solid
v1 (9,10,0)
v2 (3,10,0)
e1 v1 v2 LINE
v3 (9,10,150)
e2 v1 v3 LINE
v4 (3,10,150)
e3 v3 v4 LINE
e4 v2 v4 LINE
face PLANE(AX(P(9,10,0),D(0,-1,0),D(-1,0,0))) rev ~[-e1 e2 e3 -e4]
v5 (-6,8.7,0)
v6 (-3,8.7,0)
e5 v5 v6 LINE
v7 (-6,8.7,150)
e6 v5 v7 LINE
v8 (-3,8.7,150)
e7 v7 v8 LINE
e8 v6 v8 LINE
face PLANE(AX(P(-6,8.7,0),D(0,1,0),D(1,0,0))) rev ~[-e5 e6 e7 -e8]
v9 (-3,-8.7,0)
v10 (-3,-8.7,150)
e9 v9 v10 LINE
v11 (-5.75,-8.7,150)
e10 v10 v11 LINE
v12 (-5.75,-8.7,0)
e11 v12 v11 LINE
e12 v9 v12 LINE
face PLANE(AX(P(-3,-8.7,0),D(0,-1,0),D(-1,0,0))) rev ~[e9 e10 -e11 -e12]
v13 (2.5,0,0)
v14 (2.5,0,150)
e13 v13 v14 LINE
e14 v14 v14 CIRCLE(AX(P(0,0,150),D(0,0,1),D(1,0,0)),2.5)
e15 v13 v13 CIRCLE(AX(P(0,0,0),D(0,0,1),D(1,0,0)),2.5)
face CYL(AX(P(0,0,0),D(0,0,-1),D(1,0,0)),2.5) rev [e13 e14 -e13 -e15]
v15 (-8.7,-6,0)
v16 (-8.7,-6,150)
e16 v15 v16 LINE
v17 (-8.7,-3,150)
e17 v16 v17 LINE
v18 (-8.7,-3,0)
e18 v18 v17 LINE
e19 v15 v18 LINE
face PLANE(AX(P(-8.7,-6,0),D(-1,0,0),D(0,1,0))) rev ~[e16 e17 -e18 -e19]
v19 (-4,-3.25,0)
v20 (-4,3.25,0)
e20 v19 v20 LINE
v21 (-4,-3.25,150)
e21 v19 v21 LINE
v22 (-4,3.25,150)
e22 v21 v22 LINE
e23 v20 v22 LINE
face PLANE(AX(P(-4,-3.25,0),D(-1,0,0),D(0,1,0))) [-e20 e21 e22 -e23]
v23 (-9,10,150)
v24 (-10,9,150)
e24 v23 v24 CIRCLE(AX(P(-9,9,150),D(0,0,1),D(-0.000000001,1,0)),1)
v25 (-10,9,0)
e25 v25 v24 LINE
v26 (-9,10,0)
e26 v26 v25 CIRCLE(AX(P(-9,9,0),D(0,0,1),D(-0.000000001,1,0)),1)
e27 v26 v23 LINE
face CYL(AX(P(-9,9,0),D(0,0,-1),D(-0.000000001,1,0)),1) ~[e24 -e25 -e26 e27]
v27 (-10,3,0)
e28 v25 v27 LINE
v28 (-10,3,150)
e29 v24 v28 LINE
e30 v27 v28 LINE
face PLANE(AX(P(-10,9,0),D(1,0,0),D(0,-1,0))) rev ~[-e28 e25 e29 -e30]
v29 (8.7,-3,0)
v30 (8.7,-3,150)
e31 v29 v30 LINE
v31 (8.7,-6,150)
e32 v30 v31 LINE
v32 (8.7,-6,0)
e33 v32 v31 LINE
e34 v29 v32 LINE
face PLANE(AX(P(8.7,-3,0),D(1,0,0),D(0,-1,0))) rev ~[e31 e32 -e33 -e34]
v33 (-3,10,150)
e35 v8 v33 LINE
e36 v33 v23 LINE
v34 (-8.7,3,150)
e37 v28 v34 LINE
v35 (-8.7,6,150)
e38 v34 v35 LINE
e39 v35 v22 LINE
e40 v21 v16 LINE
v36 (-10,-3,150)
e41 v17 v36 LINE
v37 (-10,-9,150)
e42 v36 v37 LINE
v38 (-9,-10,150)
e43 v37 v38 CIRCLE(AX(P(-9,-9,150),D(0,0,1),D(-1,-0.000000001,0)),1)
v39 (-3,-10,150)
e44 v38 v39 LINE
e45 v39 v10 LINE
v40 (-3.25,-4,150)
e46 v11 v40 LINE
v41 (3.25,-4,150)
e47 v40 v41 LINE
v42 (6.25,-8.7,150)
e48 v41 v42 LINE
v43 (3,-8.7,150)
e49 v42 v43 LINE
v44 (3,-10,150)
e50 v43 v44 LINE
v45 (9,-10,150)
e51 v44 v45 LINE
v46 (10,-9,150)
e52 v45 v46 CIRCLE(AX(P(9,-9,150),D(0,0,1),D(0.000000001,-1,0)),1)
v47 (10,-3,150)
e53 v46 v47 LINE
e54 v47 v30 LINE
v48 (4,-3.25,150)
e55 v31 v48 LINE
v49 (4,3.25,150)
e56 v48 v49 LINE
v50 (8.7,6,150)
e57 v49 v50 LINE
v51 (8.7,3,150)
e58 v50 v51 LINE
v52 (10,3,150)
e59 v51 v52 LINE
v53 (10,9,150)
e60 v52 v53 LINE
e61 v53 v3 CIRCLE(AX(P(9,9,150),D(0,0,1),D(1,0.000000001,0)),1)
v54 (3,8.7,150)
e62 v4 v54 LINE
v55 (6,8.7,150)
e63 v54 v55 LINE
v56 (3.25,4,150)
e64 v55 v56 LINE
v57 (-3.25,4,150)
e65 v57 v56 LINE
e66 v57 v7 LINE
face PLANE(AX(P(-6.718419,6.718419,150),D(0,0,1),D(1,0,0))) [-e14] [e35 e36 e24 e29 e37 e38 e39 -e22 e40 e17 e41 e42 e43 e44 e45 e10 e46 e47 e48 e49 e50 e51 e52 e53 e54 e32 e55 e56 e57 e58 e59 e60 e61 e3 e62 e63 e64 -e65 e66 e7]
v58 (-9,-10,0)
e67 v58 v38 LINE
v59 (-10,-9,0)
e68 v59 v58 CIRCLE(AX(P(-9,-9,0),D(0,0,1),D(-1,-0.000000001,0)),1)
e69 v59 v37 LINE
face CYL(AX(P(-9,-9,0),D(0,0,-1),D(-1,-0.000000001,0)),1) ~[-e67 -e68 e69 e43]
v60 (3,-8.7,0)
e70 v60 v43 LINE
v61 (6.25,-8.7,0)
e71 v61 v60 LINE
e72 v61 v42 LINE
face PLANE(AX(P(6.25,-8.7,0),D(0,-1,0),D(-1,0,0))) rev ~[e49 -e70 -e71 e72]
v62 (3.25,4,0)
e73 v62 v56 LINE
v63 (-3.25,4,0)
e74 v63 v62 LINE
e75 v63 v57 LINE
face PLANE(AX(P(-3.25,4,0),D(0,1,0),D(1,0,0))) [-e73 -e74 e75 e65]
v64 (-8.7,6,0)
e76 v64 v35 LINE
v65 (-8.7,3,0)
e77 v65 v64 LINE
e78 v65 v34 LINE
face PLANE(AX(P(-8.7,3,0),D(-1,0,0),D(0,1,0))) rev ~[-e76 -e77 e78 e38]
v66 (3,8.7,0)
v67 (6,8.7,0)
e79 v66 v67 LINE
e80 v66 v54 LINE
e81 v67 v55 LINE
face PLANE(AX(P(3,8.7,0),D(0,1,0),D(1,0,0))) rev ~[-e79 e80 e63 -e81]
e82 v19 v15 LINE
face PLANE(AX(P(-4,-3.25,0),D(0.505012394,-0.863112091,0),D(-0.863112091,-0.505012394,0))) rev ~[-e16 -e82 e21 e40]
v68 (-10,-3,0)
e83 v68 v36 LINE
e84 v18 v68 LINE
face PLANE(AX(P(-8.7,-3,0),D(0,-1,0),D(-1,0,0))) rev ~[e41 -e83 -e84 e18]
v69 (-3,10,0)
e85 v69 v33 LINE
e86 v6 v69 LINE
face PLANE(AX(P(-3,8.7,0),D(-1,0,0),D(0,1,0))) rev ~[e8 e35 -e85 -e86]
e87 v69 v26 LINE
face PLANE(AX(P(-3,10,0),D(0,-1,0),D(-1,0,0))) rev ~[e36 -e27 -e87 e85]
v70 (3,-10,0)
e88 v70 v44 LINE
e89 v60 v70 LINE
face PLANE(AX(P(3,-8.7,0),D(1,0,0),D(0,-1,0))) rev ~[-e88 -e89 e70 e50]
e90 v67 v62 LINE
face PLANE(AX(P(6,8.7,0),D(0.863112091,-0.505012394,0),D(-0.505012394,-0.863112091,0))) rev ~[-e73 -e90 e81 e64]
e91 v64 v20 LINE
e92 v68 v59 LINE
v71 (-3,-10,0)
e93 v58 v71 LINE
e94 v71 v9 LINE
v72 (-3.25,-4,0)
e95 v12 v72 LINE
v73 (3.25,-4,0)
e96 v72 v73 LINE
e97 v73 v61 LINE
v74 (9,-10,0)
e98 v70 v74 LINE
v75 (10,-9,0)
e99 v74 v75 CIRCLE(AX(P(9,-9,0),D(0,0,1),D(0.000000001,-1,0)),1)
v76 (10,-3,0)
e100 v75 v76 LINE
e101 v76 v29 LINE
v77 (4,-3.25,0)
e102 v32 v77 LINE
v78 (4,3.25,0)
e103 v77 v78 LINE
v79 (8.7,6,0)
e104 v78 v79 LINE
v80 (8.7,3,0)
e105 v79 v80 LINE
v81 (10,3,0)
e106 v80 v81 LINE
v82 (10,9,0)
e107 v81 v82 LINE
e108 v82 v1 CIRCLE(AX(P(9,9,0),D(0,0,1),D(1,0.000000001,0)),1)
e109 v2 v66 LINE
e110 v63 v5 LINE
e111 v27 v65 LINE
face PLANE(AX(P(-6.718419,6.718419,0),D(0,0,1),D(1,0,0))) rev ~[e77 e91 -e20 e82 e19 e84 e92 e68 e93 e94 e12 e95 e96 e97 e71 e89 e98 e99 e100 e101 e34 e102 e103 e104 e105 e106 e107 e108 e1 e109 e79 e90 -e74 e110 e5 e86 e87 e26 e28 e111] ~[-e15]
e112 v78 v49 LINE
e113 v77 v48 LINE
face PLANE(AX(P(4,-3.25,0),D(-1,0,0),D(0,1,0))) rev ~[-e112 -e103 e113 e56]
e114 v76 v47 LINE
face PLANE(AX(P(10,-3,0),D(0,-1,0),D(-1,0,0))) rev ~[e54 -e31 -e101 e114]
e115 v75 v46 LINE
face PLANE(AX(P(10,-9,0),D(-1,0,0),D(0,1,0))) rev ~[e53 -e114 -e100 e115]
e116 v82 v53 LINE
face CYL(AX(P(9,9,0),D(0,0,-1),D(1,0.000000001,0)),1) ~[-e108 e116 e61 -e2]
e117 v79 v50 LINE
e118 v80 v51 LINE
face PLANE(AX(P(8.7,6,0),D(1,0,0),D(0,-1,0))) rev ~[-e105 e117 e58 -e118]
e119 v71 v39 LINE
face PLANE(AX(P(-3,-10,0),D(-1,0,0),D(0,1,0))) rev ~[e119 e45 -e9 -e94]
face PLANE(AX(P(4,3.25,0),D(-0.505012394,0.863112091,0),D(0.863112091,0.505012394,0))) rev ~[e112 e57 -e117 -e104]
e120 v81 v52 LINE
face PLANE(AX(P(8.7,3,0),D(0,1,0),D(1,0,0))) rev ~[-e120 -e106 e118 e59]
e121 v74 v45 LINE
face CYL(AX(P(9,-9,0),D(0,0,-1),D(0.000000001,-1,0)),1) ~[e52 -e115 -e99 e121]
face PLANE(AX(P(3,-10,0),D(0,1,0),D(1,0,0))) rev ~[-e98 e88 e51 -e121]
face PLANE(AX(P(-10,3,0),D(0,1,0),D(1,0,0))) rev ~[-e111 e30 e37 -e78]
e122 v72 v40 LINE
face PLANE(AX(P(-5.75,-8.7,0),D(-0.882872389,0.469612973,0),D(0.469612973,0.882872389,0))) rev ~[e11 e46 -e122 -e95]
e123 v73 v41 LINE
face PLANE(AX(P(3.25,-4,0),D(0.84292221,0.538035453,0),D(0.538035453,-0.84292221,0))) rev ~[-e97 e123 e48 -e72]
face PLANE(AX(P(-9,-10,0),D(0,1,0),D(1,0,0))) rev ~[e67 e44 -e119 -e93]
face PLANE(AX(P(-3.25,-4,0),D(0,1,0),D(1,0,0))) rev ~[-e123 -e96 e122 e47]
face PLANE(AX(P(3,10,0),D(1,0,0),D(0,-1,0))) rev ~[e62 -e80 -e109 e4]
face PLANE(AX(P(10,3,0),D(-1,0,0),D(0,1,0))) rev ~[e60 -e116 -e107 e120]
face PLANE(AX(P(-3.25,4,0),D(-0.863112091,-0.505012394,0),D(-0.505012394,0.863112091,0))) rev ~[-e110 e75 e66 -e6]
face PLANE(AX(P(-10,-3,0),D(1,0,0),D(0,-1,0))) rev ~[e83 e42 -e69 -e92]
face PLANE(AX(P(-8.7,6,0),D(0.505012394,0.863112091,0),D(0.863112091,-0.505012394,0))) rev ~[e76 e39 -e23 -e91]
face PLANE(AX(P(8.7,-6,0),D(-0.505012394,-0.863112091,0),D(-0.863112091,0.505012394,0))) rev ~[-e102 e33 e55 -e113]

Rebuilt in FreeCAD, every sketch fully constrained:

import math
import FreeCAD as App
import Part
import Sketcher
from FreeCAD import Vector

doc = App.newDocument("Part")
body = doc.addObject("PartDesign::Body", "Body")

sketch1 = doc.addObject("Sketcher::SketchObject", "Sketch")
body.addObject(sketch1)
sketch1.AttachmentSupport = (doc.XY_Plane, [""])
sketch1.MapMode = "FlatFace"
sketch1.addGeometry([
    Part.LineSegment(Vector(-3, 8.7, 0), Vector(-3, 10, 0)),
    Part.LineSegment(Vector(-3, 10, 0), Vector(-9, 10, 0)),
    Part.ArcOfCircle(Part.Circle(Vector(-9, 9, 0), Vector(0, 0, 1), 1), math.radians(90), math.radians(180)),
    Part.LineSegment(Vector(-10, 9, 0), Vector(-10, 3, 0)),
    Part.LineSegment(Vector(-10, 3, 0), Vector(-8.7, 3, 0)),
    Part.LineSegment(Vector(-8.7, 3, 0), Vector(-8.7, 6, 0)),
    Part.LineSegment(Vector(-8.7, 6, 0), Vector(-4, 3.2, 0)),
    Part.LineSegment(Vector(-4, 3.2, 0), Vector(-4, -3.2, 0)),
    Part.LineSegment(Vector(-4, -3.2, 0), Vector(-8.7, -6, 0)),
    Part.LineSegment(Vector(-8.7, -6, 0), Vector(-8.7, -3, 0)),
    Part.LineSegment(Vector(-8.7, -3, 0), Vector(-10, -3, 0)),
    Part.LineSegment(Vector(-10, -3, 0), Vector(-10, -9, 0)),
    Part.ArcOfCircle(Part.Circle(Vector(-9, -9, 0), Vector(0, 0, 1), 1), math.radians(-180), math.radians(-90)),
    Part.LineSegment(Vector(-9, -10, 0), Vector(-3, -10, 0)),
    Part.LineSegment(Vector(-3, -10, 0), Vector(-3, -8.7, 0)),
    Part.LineSegment(Vector(-3, -8.7, 0), Vector(-5.8, -8.7, 0)),
    Part.LineSegment(Vector(-5.8, -8.7, 0), Vector(-3.2, -4, 0)),
    Part.LineSegment(Vector(-3.2, -4, 0), Vector(3.2, -4, 0)),
    Part.LineSegment(Vector(3.2, -4, 0), Vector(6.2, -8.7, 0)),
    Part.LineSegment(Vector(6.2, -8.7, 0), Vector(3, -8.7, 0)),
    Part.LineSegment(Vector(3, -8.7, 0), Vector(3, -10, 0)),
    Part.LineSegment(Vector(3, -10, 0), Vector(9, -10, 0)),
    Part.ArcOfCircle(Part.Circle(Vector(9, -9, 0), Vector(0, 0, 1), 1), math.radians(-90), math.radians(0)),
    Part.LineSegment(Vector(10, -9, 0), Vector(10, -3, 0)),
    Part.LineSegment(Vector(10, -3, 0), Vector(8.7, -3, 0)),
    Part.LineSegment(Vector(8.7, -3, 0), Vector(8.7, -6, 0)),
    Part.LineSegment(Vector(8.7, -6, 0), Vector(4, -3.2, 0)),
    Part.LineSegment(Vector(4, -3.2, 0), Vector(4, 3.2, 0)),
    Part.LineSegment(Vector(4, 3.2, 0), Vector(8.7, 6, 0)),
    Part.LineSegment(Vector(8.7, 6, 0), Vector(8.7, 3, 0)),
    Part.LineSegment(Vector(8.7, 3, 0), Vector(10, 3, 0)),
    Part.LineSegment(Vector(10, 3, 0), Vector(10, 9, 0)),
    Part.ArcOfCircle(Part.Circle(Vector(9, 9, 0), Vector(0, 0, 1), 1), math.radians(0), math.radians(90)),
    Part.LineSegment(Vector(9, 10, 0), Vector(3, 10, 0)),
    Part.LineSegment(Vector(3, 10, 0), Vector(3, 8.7, 0)),
    Part.LineSegment(Vector(3, 8.7, 0), Vector(6, 8.7, 0)),
    Part.LineSegment(Vector(6, 8.7, 0), Vector(3.2, 4, 0)),
    Part.LineSegment(Vector(3.2, 4, 0), Vector(-3.2, 4, 0)),
    Part.LineSegment(Vector(-3.2, 4, 0), Vector(-6, 8.7, 0)),
    Part.LineSegment(Vector(-6, 8.7, 0), Vector(-3, 8.7, 0)),
    Part.Circle(Vector(0, 0, 0), Vector(0, 0, 1), 2.5),
], False)
sketch1.addConstraint([
    Sketcher.Constraint("Coincident", 0, 2, 1, 1),
    Sketcher.Constraint("Tangent", 1, 2, 2, 1),
    Sketcher.Constraint("Tangent", 2, 2, 3, 1),
    Sketcher.Constraint("Coincident", 3, 2, 4, 1),
    Sketcher.Constraint("Coincident", 4, 2, 5, 1),
    Sketcher.Constraint("Coincident", 5, 2, 6, 1),
    Sketcher.Constraint("Coincident", 6, 2, 7, 1),
    Sketcher.Constraint("Coincident", 7, 2, 8, 1),
    Sketcher.Constraint("Coincident", 8, 2, 9, 1),
    Sketcher.Constraint("Coincident", 9, 2, 10, 1),
    Sketcher.Constraint("Coincident", 10, 2, 11, 1),
    Sketcher.Constraint("Tangent", 11, 2, 12, 1),
    Sketcher.Constraint("Tangent", 12, 2, 13, 1),
    Sketcher.Constraint("Coincident", 13, 2, 14, 1),
    Sketcher.Constraint("Coincident", 14, 2, 15, 1),
    Sketcher.Constraint("Coincident", 15, 2, 16, 1),
    Sketcher.Constraint("Coincident", 16, 2, 17, 1),
    Sketcher.Constraint("Coincident", 17, 2, 18, 1),
    Sketcher.Constraint("Coincident", 18, 2, 19, 1),
    Sketcher.Constraint("Coincident", 19, 2, 20, 1),
    Sketcher.Constraint("Coincident", 20, 2, 21, 1),
    Sketcher.Constraint("Tangent", 21, 2, 22, 1),
    Sketcher.Constraint("Tangent", 22, 2, 23, 1),
    Sketcher.Constraint("Coincident", 23, 2, 24, 1),
    Sketcher.Constraint("Coincident", 24, 2, 25, 1),
    Sketcher.Constraint("Coincident", 25, 2, 26, 1),
    Sketcher.Constraint("Coincident", 26, 2, 27, 1),
    Sketcher.Constraint("Coincident", 27, 2, 28, 1),
    Sketcher.Constraint("Coincident", 28, 2, 29, 1),
    Sketcher.Constraint("Coincident", 29, 2, 30, 1),
    Sketcher.Constraint("Coincident", 30, 2, 31, 1),
    Sketcher.Constraint("Tangent", 31, 2, 32, 1),
    Sketcher.Constraint("Tangent", 32, 2, 33, 1),
    Sketcher.Constraint("Coincident", 33, 2, 34, 1),
    Sketcher.Constraint("Coincident", 34, 2, 35, 1),
    Sketcher.Constraint("Coincident", 35, 2, 36, 1),
    Sketcher.Constraint("Coincident", 36, 2, 37, 1),
    Sketcher.Constraint("Coincident", 37, 2, 38, 1),
    Sketcher.Constraint("Coincident", 38, 2, 39, 1),
    Sketcher.Constraint("Coincident", 39, 2, 0, 1),
    Sketcher.Constraint("Vertical", 0),
    Sketcher.Constraint("Horizontal", 1),
    Sketcher.Constraint("Vertical", 3),
    Sketcher.Constraint("Horizontal", 4),
    Sketcher.Constraint("Vertical", 5),
    Sketcher.Constraint("Vertical", 7),
    Sketcher.Constraint("Vertical", 9),
    Sketcher.Constraint("Horizontal", 10),
    Sketcher.Constraint("Vertical", 11),
    Sketcher.Constraint("Horizontal", 13),
    Sketcher.Constraint("Vertical", 14),
    Sketcher.Constraint("Horizontal", 15),
    Sketcher.Constraint("Horizontal", 17),
    Sketcher.Constraint("Horizontal", 19),
    Sketcher.Constraint("Vertical", 20),
    Sketcher.Constraint("Horizontal", 21),
    Sketcher.Constraint("Vertical", 23),
    Sketcher.Constraint("Horizontal", 24),
    Sketcher.Constraint("Vertical", 25),
    Sketcher.Constraint("Vertical", 27),
    Sketcher.Constraint("Vertical", 29),
    Sketcher.Constraint("Horizontal", 30),
    Sketcher.Constraint("Vertical", 31),
    Sketcher.Constraint("Horizontal", 33),
    Sketcher.Constraint("Vertical", 34),
    Sketcher.Constraint("Horizontal", 35),
    Sketcher.Constraint("Horizontal", 37),
    Sketcher.Constraint("Horizontal", 39),
    Sketcher.Constraint("Coincident", 40, 3, -1, 1),
    Sketcher.Constraint("Equal", 2, 12),
    Sketcher.Constraint("Equal", 12, 22),
    Sketcher.Constraint("Equal", 22, 32),
    Sketcher.Constraint("Symmetric", 2, 3, 22, 3, -1, 1),
    Sketcher.Constraint("Symmetric", 12, 3, 32, 3, -1, 1),
    Sketcher.Constraint("Symmetric", 4, 2, 24, 2, -1, 1),
    Sketcher.Constraint("Symmetric", 6, 2, 26, 2, -1, 1),
    Sketcher.Constraint("Symmetric", 8, 2, 28, 2, -1, 1),
    Sketcher.Constraint("Symmetric", 14, 2, 34, 2, -1, 1),
    Sketcher.Constraint("Symmetric", 16, 2, 36, 2, -1, 1),
    Sketcher.Constraint("Symmetric", 19, 2, 39, 2, -1, 1),
    Sketcher.Constraint("Symmetric", 12, 3, 22, 3, -2),
    Sketcher.Constraint("Symmetric", 14, 2, 19, 2, -2),
    Sketcher.Constraint("Symmetric", 9, 2, 24, 2, -2),
    Sketcher.Constraint("Parallel", 6, 26),
    Sketcher.Constraint("Parallel", 8, 28),
    Sketcher.Constraint("Perpendicular", 26, 36),
    Sketcher.Constraint("Perpendicular", 28, 38),
    Sketcher.Constraint("Horizontal", 8, 2, 25, 2),
    Sketcher.Constraint("Horizontal", 7, 2, 26, 2),
    Sketcher.Constraint("Horizontal", 4, 2, 29, 2),
    Sketcher.Constraint("Vertical", 17, 2, 36, 2),
    Sketcher.Constraint("Vertical", 16, 2, 37, 2),
    Sketcher.Constraint("Equal", 30, 0),
    Sketcher.Constraint("Equal", 33, 3),
    Sketcher.Constraint("Equal", 39, 5),
    Sketcher.Constraint("Equal", 37, 7),
    Sketcher.Constraint("Equal", 28, 36),
    Sketcher.Constraint("Diameter", 40, 5.0),
    Sketcher.Constraint("Radius", 2, 1.0),
    Sketcher.Constraint("DistanceX", 1, 2, 1, 1, 6.0),
    Sketcher.Constraint("DistanceX", 35, 1, 35, 2, 3.0),
    Sketcher.Constraint("DistanceX", 4, 1, 4, 2, 1.3),
    Sketcher.Constraint("DistanceX", 17, 1, 17, 2, 6.5),
    Sketcher.Constraint("DistanceX", 2, 3, -1, 1, 9.0),
    Sketcher.Constraint("DistanceX", 6, 2, -1, 1, 4.0),
    Sketcher.Constraint("DistanceX", 17, 2, 18, 2, 3.0),
    Sketcher.Constraint("DistanceX", 15, 2, 15, 1, 2.75),
])
pad1 = doc.addObject("PartDesign::Pad", "Pad")
body.addObject(pad1)
pad1.Profile = sketch1
pad1.Length = 150

doc.recompute()
